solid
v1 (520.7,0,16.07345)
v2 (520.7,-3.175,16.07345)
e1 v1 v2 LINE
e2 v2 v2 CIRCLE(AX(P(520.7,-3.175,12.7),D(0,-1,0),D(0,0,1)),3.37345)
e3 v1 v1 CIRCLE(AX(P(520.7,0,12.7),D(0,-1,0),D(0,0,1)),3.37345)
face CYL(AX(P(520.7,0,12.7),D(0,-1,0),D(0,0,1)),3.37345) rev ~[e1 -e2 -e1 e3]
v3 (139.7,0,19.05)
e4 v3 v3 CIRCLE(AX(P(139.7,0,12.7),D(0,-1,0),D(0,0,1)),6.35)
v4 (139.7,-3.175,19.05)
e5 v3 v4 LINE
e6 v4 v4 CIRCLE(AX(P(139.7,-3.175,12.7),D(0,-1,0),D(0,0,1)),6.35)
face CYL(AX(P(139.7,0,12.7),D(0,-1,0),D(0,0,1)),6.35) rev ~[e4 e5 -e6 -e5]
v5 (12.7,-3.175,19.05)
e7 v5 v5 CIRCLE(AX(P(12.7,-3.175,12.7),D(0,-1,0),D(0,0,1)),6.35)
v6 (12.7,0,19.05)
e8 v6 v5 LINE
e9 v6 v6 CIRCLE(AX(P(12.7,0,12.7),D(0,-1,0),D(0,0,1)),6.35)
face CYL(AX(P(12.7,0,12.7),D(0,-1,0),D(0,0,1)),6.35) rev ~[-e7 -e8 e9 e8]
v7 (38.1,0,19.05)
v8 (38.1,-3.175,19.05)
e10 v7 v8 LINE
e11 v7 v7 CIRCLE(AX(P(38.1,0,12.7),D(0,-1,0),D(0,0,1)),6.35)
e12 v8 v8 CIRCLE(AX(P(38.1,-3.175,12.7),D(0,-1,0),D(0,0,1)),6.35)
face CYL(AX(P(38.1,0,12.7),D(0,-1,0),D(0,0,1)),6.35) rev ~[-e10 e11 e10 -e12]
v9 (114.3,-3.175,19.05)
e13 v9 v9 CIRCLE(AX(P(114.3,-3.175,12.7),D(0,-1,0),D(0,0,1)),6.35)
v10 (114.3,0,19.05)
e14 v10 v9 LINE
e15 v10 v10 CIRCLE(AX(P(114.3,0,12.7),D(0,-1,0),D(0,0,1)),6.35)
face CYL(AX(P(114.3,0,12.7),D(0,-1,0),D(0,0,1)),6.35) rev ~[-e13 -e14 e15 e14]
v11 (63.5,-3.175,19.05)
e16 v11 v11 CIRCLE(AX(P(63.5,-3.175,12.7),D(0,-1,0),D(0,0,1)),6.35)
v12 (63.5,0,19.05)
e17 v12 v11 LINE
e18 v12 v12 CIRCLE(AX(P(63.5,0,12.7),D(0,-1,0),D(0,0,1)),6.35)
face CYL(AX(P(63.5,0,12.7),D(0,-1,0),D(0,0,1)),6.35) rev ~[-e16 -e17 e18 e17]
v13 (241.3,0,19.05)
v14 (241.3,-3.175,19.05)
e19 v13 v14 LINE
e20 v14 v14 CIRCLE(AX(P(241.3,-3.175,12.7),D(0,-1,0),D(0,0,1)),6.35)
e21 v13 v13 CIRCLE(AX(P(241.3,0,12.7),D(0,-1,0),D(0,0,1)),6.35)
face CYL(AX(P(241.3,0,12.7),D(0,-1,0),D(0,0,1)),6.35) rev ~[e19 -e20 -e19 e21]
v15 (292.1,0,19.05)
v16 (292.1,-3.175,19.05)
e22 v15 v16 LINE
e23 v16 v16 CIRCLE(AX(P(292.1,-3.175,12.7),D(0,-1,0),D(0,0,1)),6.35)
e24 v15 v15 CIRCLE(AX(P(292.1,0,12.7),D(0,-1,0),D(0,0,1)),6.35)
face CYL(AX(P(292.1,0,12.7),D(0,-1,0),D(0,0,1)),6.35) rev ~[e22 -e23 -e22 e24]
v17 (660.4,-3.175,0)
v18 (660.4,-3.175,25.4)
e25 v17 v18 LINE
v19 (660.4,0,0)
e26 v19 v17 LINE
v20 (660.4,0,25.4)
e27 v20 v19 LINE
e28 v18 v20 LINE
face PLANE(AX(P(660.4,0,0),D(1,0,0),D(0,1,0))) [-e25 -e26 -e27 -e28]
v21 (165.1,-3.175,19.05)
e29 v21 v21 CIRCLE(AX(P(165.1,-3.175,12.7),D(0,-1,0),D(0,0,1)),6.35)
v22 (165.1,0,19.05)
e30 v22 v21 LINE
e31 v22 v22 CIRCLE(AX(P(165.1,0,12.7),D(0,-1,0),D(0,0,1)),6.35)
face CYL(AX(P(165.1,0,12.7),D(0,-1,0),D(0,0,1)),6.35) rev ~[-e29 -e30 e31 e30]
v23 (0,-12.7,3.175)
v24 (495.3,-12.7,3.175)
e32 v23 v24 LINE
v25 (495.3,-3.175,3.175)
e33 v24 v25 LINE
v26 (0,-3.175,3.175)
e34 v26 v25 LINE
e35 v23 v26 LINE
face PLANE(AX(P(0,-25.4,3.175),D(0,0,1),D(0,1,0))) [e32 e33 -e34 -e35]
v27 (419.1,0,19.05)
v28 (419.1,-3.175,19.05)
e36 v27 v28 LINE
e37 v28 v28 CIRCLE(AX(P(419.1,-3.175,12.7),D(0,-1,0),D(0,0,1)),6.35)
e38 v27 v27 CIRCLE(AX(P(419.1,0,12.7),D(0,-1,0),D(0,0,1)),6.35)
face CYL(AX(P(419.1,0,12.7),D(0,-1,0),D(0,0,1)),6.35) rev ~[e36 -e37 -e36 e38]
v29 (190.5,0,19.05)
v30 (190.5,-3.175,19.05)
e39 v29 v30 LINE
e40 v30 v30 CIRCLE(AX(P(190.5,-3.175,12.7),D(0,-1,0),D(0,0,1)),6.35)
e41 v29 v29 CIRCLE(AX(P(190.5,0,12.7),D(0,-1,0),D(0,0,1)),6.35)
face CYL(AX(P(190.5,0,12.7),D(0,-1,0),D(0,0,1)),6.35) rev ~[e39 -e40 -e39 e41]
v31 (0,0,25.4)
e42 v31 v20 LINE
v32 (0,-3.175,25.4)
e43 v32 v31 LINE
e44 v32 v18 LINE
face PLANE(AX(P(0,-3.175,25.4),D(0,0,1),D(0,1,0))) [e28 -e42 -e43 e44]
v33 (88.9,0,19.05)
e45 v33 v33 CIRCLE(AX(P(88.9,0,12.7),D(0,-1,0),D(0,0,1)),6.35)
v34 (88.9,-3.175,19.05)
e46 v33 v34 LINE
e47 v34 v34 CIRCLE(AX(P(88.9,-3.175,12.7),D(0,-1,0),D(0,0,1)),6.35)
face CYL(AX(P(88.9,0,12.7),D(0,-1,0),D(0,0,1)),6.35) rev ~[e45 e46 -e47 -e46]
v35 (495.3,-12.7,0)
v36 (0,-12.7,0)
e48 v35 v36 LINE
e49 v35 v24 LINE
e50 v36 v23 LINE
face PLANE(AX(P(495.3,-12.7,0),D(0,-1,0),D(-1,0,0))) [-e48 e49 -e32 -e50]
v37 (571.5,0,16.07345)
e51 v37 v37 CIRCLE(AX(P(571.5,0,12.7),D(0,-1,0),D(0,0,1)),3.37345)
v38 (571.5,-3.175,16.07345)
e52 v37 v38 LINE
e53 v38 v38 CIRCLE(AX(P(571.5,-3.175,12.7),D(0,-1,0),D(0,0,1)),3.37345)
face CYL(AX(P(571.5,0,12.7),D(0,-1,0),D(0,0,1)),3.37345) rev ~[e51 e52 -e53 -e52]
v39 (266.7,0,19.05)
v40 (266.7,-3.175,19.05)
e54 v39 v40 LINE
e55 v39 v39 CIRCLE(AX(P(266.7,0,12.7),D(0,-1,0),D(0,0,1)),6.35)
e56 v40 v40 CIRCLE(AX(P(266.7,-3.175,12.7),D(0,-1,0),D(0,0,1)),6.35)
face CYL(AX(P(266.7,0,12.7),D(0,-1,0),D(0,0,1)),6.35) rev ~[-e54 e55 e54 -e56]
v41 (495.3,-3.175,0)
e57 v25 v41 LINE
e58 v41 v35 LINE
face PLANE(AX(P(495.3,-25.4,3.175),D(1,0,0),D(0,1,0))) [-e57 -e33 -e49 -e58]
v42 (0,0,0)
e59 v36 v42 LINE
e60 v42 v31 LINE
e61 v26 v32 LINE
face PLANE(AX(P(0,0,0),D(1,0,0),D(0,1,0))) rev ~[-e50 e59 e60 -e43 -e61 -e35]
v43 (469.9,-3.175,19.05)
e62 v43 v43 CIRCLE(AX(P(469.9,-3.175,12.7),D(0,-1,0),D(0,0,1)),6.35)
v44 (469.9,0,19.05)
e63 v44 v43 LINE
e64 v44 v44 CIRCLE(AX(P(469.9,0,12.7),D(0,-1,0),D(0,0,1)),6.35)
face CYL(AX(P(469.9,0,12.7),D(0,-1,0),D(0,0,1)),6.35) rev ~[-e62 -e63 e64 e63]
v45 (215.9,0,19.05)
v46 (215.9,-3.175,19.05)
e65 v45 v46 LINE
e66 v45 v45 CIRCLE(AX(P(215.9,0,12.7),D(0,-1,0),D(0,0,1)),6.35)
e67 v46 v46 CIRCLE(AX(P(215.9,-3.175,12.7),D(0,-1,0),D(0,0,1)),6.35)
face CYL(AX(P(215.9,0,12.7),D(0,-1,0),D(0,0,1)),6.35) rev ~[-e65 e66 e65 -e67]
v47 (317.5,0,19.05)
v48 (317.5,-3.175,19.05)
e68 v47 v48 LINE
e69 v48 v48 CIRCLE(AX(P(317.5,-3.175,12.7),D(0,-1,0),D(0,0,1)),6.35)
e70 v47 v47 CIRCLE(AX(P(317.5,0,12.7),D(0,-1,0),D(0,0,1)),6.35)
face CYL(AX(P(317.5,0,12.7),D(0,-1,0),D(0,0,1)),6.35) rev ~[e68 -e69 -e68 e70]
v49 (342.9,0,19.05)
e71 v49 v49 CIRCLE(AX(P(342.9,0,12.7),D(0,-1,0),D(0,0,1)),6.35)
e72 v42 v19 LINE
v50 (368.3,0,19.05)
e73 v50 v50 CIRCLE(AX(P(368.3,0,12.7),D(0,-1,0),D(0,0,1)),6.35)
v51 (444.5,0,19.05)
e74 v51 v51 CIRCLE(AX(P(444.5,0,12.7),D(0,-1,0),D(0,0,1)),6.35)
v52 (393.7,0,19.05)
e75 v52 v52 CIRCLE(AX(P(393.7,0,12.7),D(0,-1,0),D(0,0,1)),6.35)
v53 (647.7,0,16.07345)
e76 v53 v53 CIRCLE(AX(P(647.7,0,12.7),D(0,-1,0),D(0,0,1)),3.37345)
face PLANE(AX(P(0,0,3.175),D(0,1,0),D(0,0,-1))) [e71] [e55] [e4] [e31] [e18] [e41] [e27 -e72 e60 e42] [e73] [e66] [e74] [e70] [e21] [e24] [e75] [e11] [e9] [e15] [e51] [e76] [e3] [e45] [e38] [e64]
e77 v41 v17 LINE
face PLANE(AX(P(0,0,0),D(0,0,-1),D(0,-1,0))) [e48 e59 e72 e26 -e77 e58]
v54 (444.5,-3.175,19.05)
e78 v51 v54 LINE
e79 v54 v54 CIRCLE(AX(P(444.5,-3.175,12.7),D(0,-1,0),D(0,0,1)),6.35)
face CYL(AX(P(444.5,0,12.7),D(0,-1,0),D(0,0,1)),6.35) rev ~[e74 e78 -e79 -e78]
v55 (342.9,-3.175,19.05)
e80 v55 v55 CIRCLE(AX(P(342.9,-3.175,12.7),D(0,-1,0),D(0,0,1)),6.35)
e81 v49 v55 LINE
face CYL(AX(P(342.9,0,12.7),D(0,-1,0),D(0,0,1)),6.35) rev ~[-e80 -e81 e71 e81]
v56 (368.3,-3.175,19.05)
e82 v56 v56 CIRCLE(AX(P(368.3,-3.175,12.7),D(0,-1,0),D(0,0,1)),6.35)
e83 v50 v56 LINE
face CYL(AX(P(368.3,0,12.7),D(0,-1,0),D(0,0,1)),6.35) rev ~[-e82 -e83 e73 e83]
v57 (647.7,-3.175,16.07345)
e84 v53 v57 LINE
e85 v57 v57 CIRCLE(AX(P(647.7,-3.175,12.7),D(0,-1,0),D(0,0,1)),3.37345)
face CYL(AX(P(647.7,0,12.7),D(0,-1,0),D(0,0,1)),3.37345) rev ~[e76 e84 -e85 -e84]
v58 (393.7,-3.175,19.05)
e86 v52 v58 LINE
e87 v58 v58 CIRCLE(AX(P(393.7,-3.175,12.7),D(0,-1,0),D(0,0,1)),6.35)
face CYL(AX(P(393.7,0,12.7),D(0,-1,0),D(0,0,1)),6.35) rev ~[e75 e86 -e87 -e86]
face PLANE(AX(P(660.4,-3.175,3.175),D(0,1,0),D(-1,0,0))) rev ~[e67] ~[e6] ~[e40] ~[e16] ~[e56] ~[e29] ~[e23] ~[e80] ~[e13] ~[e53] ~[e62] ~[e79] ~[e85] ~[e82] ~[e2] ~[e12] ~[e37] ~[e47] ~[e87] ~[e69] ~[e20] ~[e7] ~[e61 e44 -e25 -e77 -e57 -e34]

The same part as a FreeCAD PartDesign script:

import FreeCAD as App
import Part
import Sketcher
from FreeCAD import Vector
Q = App.Units.Quantity

doc = App.newDocument("Part")
body = doc.addObject("PartDesign::Body", "Body")

# Sketch on YZ plane
sketch1 = body.newObject("Sketcher::SketchObject", "Sketch")
sketch1.AttachmentSupport = (doc.getObject("YZ_Plane"), [""])
sketch1.MapMode = "FlatFace"
sketch1.addGeometry(Part.LineSegment(Vector(0, 0, 0), Vector(0, 25.4, 0)), False)
sketch1.addGeometry(Part.LineSegment(Vector(0, 25.4, 0), Vector(-3.2, 25.4, 0)), False)
sketch1.addGeometry(Part.LineSegment(Vector(-3.2, 25.4, 0), Vector(-3.2, 3.2, 0)), False)
sketch1.addGeometry(Part.LineSegment(Vector(-3.2, 3.2, 0), Vector(-25.4, 3.2, 0)), False)
sketch1.addGeometry(Part.LineSegment(Vector(-25.4, 3.2, 0), Vector(-25.4, 0, 0)), False)
sketch1.addGeometry(Part.LineSegment(Vector(-25.4, 0, 0), Vector(0, 0, 0)), False)
sketch1.addConstraint(Sketcher.Constraint("Coincident", 0, 2, 1, 1))
sketch1.addConstraint(Sketcher.Constraint("Coincident", 1, 2, 2, 1))
sketch1.addConstraint(Sketcher.Constraint("Coincident", 2, 2, 3, 1))
sketch1.addConstraint(Sketcher.Constraint("Coincident", 3, 2, 4, 1))
sketch1.addConstraint(Sketcher.Constraint("Coincident", 4, 2, 5, 1))
sketch1.addConstraint(Sketcher.Constraint("Coincident", 5, 2, 0, 1))
sketch1.addConstraint(Sketcher.Constraint("Vertical", 0))
sketch1.addConstraint(Sketcher.Constraint("Horizontal", 1))
sketch1.addConstraint(Sketcher.Constraint("Vertical", 2))
sketch1.addConstraint(Sketcher.Constraint("Horizontal", 3))
sketch1.addConstraint(Sketcher.Constraint("Vertical", 4))
sketch1.addConstraint(Sketcher.Constraint("Horizontal", 5))
sketch1.addConstraint(Sketcher.Constraint("Coincident", 5, 2, -1, 1))
sketch1.addConstraint(Sketcher.Constraint("Equal", 5, 0))
sketch1.addConstraint(Sketcher.Constraint("Equal", 3, 2))
sketch1.addConstraint(Sketcher.Constraint("DistanceX", 5, 1, 5, 2, Q("1 in")))
sketch1.addConstraint(Sketcher.Constraint("DistanceX", 1, 2, 1, 1, Q("0.125 in")))
pad1 = body.newObject("PartDesign::Pad", "Pad")
pad1.Profile = sketch1
pad1.Length = Q("26 in")

# Sketch on XY plane
sketch2 = body.newObject("Sketcher::SketchObject", "Sketch001")
sketch2.AttachmentSupport = (doc.getObject("XY_Plane"), [""])
sketch2.MapMode = "FlatFace"
sketch2.AttachmentOffset = App.Placement(Vector(0, 0, 0.125 * 25.4), App.Rotation())
sketch2.addGeometry(Part.LineSegment(Vector(660, -25, 0), Vector(660, -3, 0)), False)
sketch2.addGeometry(Part.LineSegment(Vector(660, -3, 0), Vector(495, -3, 0)), False)
sketch2.addGeometry(Part.LineSegment(Vector(495, -3, 0), Vector(495, -25, 0)), False)
sketch2.addGeometry(Part.LineSegment(Vector(495, -25, 0), Vector(660, -25, 0)), False)
sketch2.addConstraint(Sketcher.Constraint("Coincident", 0, 2, 1, 1))
sketch2.addConstraint(Sketcher.Constraint("Coincident", 1, 2, 2, 1))
sketch2.addConstraint(Sketcher.Constraint("Coincident", 2, 2, 3, 1))
sketch2.addConstraint(Sketcher.Constraint("Coincident", 3, 2, 0, 1))
sketch2.addConstraint(Sketcher.Constraint("Vertical", 0))
sketch2.addConstraint(Sketcher.Constraint("Horizontal", 1))
sketch2.addConstraint(Sketcher.Constraint("Vertical", 2))
sketch2.addConstraint(Sketcher.Constraint("Horizontal", 3))
sketch2.addConstraint(Sketcher.Constraint("DistanceX", 1, 2, 1, 1, Q("6.5 in")))
sketch2.addConstraint(Sketcher.Constraint("DistanceY", 0, 1, 0, 2, Q("0.875 in")))
sketch2.addConstraint(Sketcher.Constraint("DistanceX", -1, 1, 0, 2, Q("26 in")))
sketch2.addConstraint(Sketcher.Constraint("DistanceY", 2, 2, -1, 1, Q("1 in")))
pocket1 = body.newObject("PartDesign::Pocket", "Pocket")
pocket1.Profile = sketch2
pocket1.Length = Q("1 in")

# Sketch on XY plane
sketch3 = body.newObject("Sketcher::SketchObject", "Sketch002")
sketch3.AttachmentSupport = (doc.getObject("XY_Plane"), [""])
sketch3.MapMode = "FlatFace"
sketch3.addGeometry(Part.LineSegment(Vector(0, -13, 0), Vector(495, -13, 0)), False)
sketch3.addGeometry(Part.LineSegment(Vector(495, -13, 0), Vector(495, -25, 0)), False)
sketch3.addGeometry(Part.LineSegment(Vector(495, -25, 0), Vector(0, -25, 0)), False)
sketch3.addGeometry(Part.LineSegment(Vector(0, -25, 0), Vector(0, -13, 0)), False)
sketch3.addConstraint(Sketcher.Constraint("Coincident", 0, 2, 1, 1))
sketch3.addConstraint(Sketcher.Constraint("Coincident", 1, 2, 2, 1))
sketch3.addConstraint(Sketcher.Constraint("Coincident", 2, 2, 3, 1))
sketch3.addConstraint(Sketcher.Constraint("Coincident", 3, 2, 0, 1))
sketch3.addConstraint(Sketcher.Constraint("Horizontal", 0))
sketch3.addConstraint(Sketcher.Constraint("Vertical", 1))
sketch3.addConstraint(Sketcher.Constraint("Horizontal", 2))
sketch3.addConstraint(Sketcher.Constraint("Vertical", 3))
sketch3.addConstraint(Sketcher.Constraint("PointOnObject", 2, 2, -2))
sketch3.addConstraint(Sketcher.Constraint("DistanceX", 0, 1, 0, 2, Q("19.5 in")))
sketch3.addConstraint(Sketcher.Constraint("DistanceY", 1, 2, 1, 1, Q("0.5 in")))
sketch3.addConstraint(Sketcher.Constraint("DistanceY", 0, 2, -1, 1, Q("0.5 in")))
pocket2 = body.newObject("PartDesign::Pocket", "Pocket001")
pocket2.Profile = sketch3
pocket2.Length = Q("1 in")
pocket2.Reversed = True

# Sketch on XZ plane
sketch4 = body.newObject("Sketcher::SketchObject", "Sketch003")
sketch4.AttachmentSupport = (doc.getObject("XZ_Plane"), [""])
sketch4.MapMode = "FlatFace"
sketch4.addGeometry(Part.Circle(Vector(13, 13, 0), Vector(0, 0, 1), 6), False)
sketch4.addConstraint(Sketcher.Constraint("Diameter", 0, Q("0.5 in")))
sketch4.addConstraint(Sketcher.Constraint("DistanceX", -1, 1, 0, 3, Q("0.5 in")))
sketch4.addConstraint(Sketcher.Constraint("DistanceY", -1, 1, 0, 3, Q("0.5 in")))
doc.recompute()
hole = body.newObject("PartDesign::Hole", "Hole")
hole.Profile = sketch4
hole.ThreadType = "None"
hole.Diameter = Q("0.5 in")
hole.DepthType = "ThroughAll"
hole.Reversed = True
doc.recompute()

linearpattern = body.newObject("PartDesign::LinearPattern", "LinearPattern")
linearpattern.Originals = [hole]
linearpattern.Direction = (doc.getObject("X_Axis"), [""])
linearpattern.Mode = "offset"
linearpattern.Offset = Q("1 in")
linearpattern.Occurrences = 19
body.Tip = linearpattern

# Sketch on XZ plane
sketch5 = body.newObject("Sketcher::SketchObject", "Sketch004")
sketch5.AttachmentSupport = (doc.getObject("XZ_Plane"), [""])
sketch5.MapMode = "FlatFace"
sketch5.addGeometry(Part.Circle(Vector(647.7, 12.7, 0), Vector(0, 0, 1), 3.4), False)
sketch5.addGeometry(Part.Circle(Vector(520.7, 12.7, 0), Vector(0, 0, 1), 3.4), False)
sketch5.addGeometry(Part.Circle(Vector(571.5, 12.7, 0), Vector(0, 0, 1), 3.4), False)
sketch5.addConstraint(Sketcher.Constraint("Equal", 0, 1))
sketch5.addConstraint(Sketcher.Constraint("Equal", 1, 2))
sketch5.addConstraint(Sketcher.Constraint("Horizontal", 0, 3, 1, 3))
sketch5.addConstraint(Sketcher.Constraint("Horizontal", 1, 3, 2, 3))
sketch5.addConstraint(Sketcher.Constraint("Diameter", 0, Q("0.2656299 in")))
sketch5.addConstraint(Sketcher.Constraint("DistanceX", 1, 3, 0, 3, Q("5 in")))
sketch5.addConstraint(Sketcher.Constraint("DistanceX", 1, 3, 2, 3, Q("2 in")))
sketch5.addConstraint(Sketcher.Constraint("DistanceX", -1, 1, 0, 3, Q("25.5 in")))
sketch5.addConstraint(Sketcher.Constraint("DistanceY", -1, 1, 0, 3, Q("0.5 in")))
doc.recompute()
hole2 = body.newObject("PartDesign::Hole", "Hole001")
hole2.Profile = sketch5
hole2.ThreadType = "None"
hole2.Diameter = Q("0.265626 in")
hole2.DepthType = "ThroughAll"
hole2.Reversed = True

doc.recompute()
